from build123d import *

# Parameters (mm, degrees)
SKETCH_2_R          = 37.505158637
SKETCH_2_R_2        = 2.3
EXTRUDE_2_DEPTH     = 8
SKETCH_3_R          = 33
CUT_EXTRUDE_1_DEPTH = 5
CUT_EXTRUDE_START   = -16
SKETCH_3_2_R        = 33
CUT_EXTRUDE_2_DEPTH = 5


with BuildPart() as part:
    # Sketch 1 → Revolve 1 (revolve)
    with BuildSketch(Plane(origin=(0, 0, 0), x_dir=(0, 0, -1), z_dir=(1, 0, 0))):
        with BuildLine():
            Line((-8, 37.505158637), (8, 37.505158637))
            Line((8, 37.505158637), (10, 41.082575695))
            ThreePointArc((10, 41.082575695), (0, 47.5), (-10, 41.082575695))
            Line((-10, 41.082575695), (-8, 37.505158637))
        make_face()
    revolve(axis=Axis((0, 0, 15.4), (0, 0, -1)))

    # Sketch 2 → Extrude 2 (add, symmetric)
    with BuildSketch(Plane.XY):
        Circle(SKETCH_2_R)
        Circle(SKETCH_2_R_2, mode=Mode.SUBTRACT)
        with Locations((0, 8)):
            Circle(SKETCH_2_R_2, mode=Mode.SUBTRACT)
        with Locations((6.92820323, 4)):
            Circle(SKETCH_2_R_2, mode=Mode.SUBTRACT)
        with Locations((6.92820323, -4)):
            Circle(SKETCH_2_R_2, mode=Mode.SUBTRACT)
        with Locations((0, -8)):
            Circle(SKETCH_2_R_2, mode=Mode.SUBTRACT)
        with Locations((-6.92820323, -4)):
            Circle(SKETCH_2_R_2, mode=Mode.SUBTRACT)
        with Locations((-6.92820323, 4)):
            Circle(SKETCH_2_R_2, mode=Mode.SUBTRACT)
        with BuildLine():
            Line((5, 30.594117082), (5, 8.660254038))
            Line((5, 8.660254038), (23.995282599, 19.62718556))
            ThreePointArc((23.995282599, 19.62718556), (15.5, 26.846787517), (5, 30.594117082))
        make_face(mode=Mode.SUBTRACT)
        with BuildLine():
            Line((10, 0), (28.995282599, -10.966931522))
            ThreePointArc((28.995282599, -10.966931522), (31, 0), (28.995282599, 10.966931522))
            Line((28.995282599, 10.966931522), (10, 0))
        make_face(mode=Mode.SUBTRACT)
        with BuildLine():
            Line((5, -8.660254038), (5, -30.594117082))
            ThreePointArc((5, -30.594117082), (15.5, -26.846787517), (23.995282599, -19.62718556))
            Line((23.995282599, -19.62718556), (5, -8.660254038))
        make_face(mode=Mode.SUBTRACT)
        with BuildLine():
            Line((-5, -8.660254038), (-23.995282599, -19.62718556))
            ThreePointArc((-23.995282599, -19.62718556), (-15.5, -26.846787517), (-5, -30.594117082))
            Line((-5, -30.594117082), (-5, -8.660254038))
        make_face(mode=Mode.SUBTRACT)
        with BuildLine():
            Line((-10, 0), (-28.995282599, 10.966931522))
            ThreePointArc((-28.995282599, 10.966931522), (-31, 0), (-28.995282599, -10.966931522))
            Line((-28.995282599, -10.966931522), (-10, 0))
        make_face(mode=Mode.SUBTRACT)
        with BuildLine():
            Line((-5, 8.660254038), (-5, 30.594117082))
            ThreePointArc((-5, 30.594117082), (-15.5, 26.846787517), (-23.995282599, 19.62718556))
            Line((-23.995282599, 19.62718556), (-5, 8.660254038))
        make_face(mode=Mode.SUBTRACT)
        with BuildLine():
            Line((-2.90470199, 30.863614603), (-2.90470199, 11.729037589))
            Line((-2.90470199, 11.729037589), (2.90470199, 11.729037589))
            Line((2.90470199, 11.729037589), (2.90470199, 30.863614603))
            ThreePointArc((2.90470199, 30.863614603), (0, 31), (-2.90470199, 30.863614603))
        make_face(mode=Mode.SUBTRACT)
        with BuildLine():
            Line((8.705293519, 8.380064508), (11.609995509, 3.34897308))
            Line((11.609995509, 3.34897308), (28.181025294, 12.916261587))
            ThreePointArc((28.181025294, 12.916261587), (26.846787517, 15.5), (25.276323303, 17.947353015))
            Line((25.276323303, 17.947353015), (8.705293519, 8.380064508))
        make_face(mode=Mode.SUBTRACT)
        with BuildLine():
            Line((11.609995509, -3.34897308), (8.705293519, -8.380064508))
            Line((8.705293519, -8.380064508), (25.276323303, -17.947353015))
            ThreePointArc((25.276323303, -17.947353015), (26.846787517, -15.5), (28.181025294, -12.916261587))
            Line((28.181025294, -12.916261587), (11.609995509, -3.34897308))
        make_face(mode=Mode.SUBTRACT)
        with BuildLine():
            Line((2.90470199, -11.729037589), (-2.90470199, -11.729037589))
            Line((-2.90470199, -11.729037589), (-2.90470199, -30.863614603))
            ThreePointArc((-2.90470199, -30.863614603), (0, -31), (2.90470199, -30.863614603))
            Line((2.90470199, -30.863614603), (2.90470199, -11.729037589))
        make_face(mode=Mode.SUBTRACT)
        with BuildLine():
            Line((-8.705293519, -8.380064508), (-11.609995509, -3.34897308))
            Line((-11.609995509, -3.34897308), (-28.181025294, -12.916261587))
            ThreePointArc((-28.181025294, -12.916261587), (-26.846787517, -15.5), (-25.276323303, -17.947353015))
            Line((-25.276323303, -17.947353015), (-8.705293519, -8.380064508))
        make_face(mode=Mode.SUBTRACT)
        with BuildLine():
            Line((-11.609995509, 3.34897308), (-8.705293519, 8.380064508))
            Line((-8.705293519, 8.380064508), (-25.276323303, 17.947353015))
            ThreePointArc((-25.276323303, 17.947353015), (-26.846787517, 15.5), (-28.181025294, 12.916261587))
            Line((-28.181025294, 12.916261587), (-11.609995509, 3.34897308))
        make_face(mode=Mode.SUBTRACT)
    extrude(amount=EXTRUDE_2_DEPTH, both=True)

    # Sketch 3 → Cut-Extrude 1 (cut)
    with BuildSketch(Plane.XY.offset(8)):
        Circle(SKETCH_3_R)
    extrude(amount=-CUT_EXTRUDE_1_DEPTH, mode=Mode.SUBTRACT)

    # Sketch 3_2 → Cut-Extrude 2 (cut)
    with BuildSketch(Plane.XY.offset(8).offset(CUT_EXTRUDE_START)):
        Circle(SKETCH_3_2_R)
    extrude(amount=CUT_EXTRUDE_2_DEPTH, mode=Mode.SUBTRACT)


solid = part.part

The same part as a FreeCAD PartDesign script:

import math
import FreeCAD as App
import Part
import Sketcher

V = App.Vector
Q = App.Units.Quantity

doc = App.newDocument("Part")
params = doc.addObject("Spreadsheet::Sheet", "Params")
for row, (alias, value) in enumerate([
    ("sketch1_radius", "11 mm"),
    ("sketch1_height", "16 mm"),
    ("revolution_angle", "360 deg"),
    ("sketch2_radius", "31 mm"),
    ("sketch2_diameter", "4.6 mm"),
    ("pad1_length", "16 mm"),
    ("sketch3_diameter", "66 mm"),
    ("pocket1_length", "5 mm"),
    ("sketch4_diameter", "66 mm"),
    ("pocket2_length", "5 mm"),
], start=1):
    params.set(f"A{row}", alias)
    params.set(f"B{row}", "=" + value)
    params.setAlias(f"B{row}", alias)

body = doc.addObject("PartDesign::Body", "Body")

# Sketch on YZ plane
sketch1 = body.newObject("Sketcher::SketchObject", "Sketch")
sketch1.AttachmentSupport = (doc.getObject("YZ_Plane"), [""])
sketch1.MapMode = "FlatFace"
sketch1.addGeometry([
    Part.LineSegment(V(37.505159, 8, 0), V(37.505159, -8, 0)),
    Part.LineSegment(V(37.505159, -8, 0), V(41.082576, -10, 0)),
    Part.ArcOfCircle(Part.Circle(V(36.5, 0, 0), V(0, 0, 1), 11), math.radians(-65.380023), math.radians(65.380023)),
    Part.LineSegment(V(41.082576, 10, 0), V(37.505159, 8, 0)),
], False)
sketch1.addConstraint([
    Sketcher.Constraint("Coincident", 0, 2, 1, 1),
    Sketcher.Constraint("Coincident", 1, 2, 2, 1),
    Sketcher.Constraint("Coincident", 2, 2, 3, 1),
    Sketcher.Constraint("Coincident", 3, 2, 0, 1),
    Sketcher.Constraint("Vertical", 0),
    Sketcher.Constraint("Symmetric", 1, 2, 2, 2, -1),
    Sketcher.Constraint("Equal", 1, 3),
    Sketcher.Constraint("Radius", 2, Q("11 mm")),
    Sketcher.Constraint("DistanceY", 0, 2, 0, 1, Q("16 mm")),
    Sketcher.Constraint("DistanceY", 1, 2, -1, 1, Q("10 mm")),
    Sketcher.Constraint("DistanceX", -1, 1, 2, 3, Q("36.5 mm")),
    Sketcher.Constraint("DistanceX", -1, 1, 0, 2, Q("37.505159 mm")),
])
sketch1.setExpression("Constraints[7]", "Params.sketch1_radius")
sketch1.setExpression("Constraints[8]", "Params.sketch1_height")
revolution = body.newObject("PartDesign::Revolution", "Revolution")
revolution.Profile = sketch1
revolution.ReferenceAxis = (sketch1, ["V_Axis"])
revolution.setExpression("Angle", "Params.revolution_angle")

# Sketch on XY plane
sketch2 = body.newObject("Sketcher::SketchObject", "Sketch001")
sketch2.AttachmentSupport = (doc.getObject("XY_Plane"), [""])
sketch2.MapMode = "FlatFace"
sketch2.addGeometry([
    Part.Circle(V(0, 0, 0), V(0, 0, 1), 37.505159),  # 0
    Part.LineSegment(V(-23.995283, -19.627186, 0), V(-5, -8.660254, 0)),  # 1
    Part.LineSegment(V(-5, -8.660254, 0), V(-5, -30.594117, 0)),  # 2
    Part.ArcOfCircle(Part.Circle(V(0, 0, 0), V(0, 0, 1), 31), math.radians(-140.718201), math.radians(-99.281799)),  # 3
    Part.LineSegment(V(-11.609996, -3.348973, 0), V(-8.705294, -8.380065, 0)),  # 4
    Part.LineSegment(V(-8.705294, -8.380065, 0), V(-25.276323, -17.947353, 0)),  # 5
    Part.ArcOfCircle(Part.Circle(V(0, 0, 0), V(0, 0, 1), 31), math.radians(-155.376505), math.radians(-144.623495)),  # 6
    Part.LineSegment(V(-28.181025, -12.916262, 0), V(-11.609996, -3.348973, 0)),  # 7
    Part.Circle(V(-6.928203, -4, 0), V(0, 0, 1), 2.3),  # 8
    Part.LineSegment(V(-2.904702, -11.729038, 0), V(2.904702, -11.729038, 0)),  # 9
    Part.LineSegment(V(2.904702, -11.729038, 0), V(2.904702, -30.863615, 0)),  # 10
    Part.ArcOfCircle(Part.Circle(V(0, 0, 0), V(0, 0, 1), 31), math.radians(-95.376505), math.radians(-84.623495)),  # 11
    Part.LineSegment(V(-2.904702, -30.863615, 0), V(-2.904702, -11.729038, 0)),  # 12
    Part.LineSegment(V(5, -30.594117, 0), V(5, -8.660254, 0)),  # 13
    Part.LineSegment(V(5, -8.660254, 0), V(23.995283, -19.627186, 0)),  # 14
    Part.ArcOfCircle(Part.Circle(V(0, 0, 0), V(0, 0, 1), 31), math.radians(-80.718201), math.radians(-39.281799)),  # 15
    Part.Circle(V(0, -8, 0), V(0, 0, 1), 2.3),  # 16
    Part.Circle(V(6.928203, -4, 0), V(0, 0, 1), 2.3),  # 17
    Part.LineSegment(V(8.705294, -8.380065, 0), V(11.609996, -3.348973, 0)),  # 18
    Part.LineSegment(V(11.609996, -3.348973, 0), V(28.181025, -12.916262, 0)),  # 19
    Part.ArcOfCircle(Part.Circle(V(0, 0, 0), V(0, 0, 1), 31), math.radians(-35.376505), math.radians(-24.623495)),  # 20
    Part.LineSegment(V(25.276323, -17.947353, 0), V(8.705294, -8.380065, 0)),  # 21
    Part.LineSegment(V(-28.995283, 10.966932, 0), V(-10, 0, 0)),  # 22
    Part.LineSegment(V(-10, 0, 0), V(-28.995283, -10.966932, 0)),  # 23
    Part.ArcOfCircle(Part.Circle(V(0, 0, 0), V(0, 0, 1), 31), math.radians(159.281799), math.radians(200.718201)),  # 24
    Part.LineSegment(V(-8.705294, 8.380065, 0), V(-11.609996, 3.348973, 0)),  # 25
    Part.LineSegment(V(-11.609996, 3.348973, 0), V(-28.181025, 12.916262, 0)),  # 26
    Part.ArcOfCircle(Part.Circle(V(0, 0, 0), V(0, 0, 1), 31), math.radians(144.623495), math.radians(155.376505)),  # 27
    Part.LineSegment(V(-25.276323, 17.947353, 0), V(-8.705294, 8.380065, 0)),  # 28
    Part.Circle(V(-6.928203, 4, 0), V(0, 0, 1), 2.3),  # 29
    Part.LineSegment(V(-5, 30.594117, 0), V(-5, 8.660254, 0)),  # 30
    Part.LineSegment(V(-5, 8.660254, 0), V(-23.995283, 19.627186, 0)),  # 31
    Part.ArcOfCircle(Part.Circle(V(0, 0, 0), V(0, 0, 1), 31), math.radians(99.281799), math.radians(140.718201)),  # 32
    Part.Circle(V(0, 0, 0), V(0, 0, 1), 2.3),  # 33
    Part.Circle(V(6.928203, 4, 0), V(0, 0, 1), 2.3),  # 34
    Part.Circle(V(0, 8, 0), V(0, 0, 1), 2.3),  # 35
    Part.LineSegment(V(28.995283, -10.966932, 0), V(10, 0, 0)),  # 36
    Part.LineSegment(V(10, 0, 0), V(28.995283, 10.966932, 0)),  # 37
    Part.ArcOfCircle(Part.Circle(V(0, 0, 0), V(0, 0, 1), 31), math.radians(-20.718201), math.radians(20.718201)),  # 38
    Part.LineSegment(V(11.609996, 3.348973, 0), V(8.705294, 8.380065, 0)),  # 39
    Part.LineSegment(V(8.705294, 8.380065, 0), V(25.276323, 17.947353, 0)),  # 40
    Part.ArcOfCircle(Part.Circle(V(0, 0, 0), V(0, 0, 1), 31), math.radians(24.623495), math.radians(35.376505)),  # 41
    Part.LineSegment(V(28.181025, 12.916262, 0), V(11.609996, 3.348973, 0)),  # 42
    Part.LineSegment(V(-2.904702, 11.729038, 0), V(-2.904702, 30.863615, 0)),  # 43
    Part.ArcOfCircle(Part.Circle(V(0, 0, 0), V(0, 0, 1), 31), math.radians(84.623495), math.radians(95.376505)),  # 44
    Part.LineSegment(V(2.904702, 30.863615, 0), V(2.904702, 11.729038, 0)),  # 45
    Part.LineSegment(V(2.904702, 11.729038, 0), V(-2.904702, 11.729038, 0)),  # 46
    Part.LineSegment(V(5, 8.660254, 0), V(5, 30.594117, 0)),  # 47
    Part.ArcOfCircle(Part.Circle(V(0, 0, 0), V(0, 0, 1), 31), math.radians(39.281799), math.radians(80.718201)),  # 48
    Part.LineSegment(V(23.995283, 19.627186, 0), V(5, 8.660254, 0)),  # 49
], False)
sketch2.addConstraint([
    Sketcher.Constraint("Coincident", 1, 2, 2, 1),
    Sketcher.Constraint("Coincident", 2, 2, 3, 2),
    Sketcher.Constraint("Coincident", 3, 1, 1, 1),
    Sketcher.Constraint("Coincident", 4, 2, 5, 1),
    Sketcher.Constraint("Coincident", 5, 2, 6, 2),
    Sketcher.Constraint("Coincident", 6, 1, 7, 1),
    Sketcher.Constraint("Coincident", 7, 2, 4, 1),
    Sketcher.Constraint("Coincident", 9, 2, 10, 1),
    Sketcher.Constraint("Coincident", 10, 2, 11, 2),
    Sketcher.Constraint("Coincident", 11, 1, 12, 1),
    Sketcher.Constraint("Coincident", 12, 2, 9, 1),
    Sketcher.Constraint("Coincident", 13, 2, 14, 1),
    Sketcher.Constraint("Coincident", 14, 2, 15, 2),
    Sketcher.Constraint("Coincident", 15, 1, 13, 1),
    Sketcher.Constraint("Coincident", 18, 2, 19, 1),
    Sketcher.Constraint("Coincident", 19, 2, 20, 2),
    Sketcher.Constraint("Coincident", 20, 1, 21, 1),
    Sketcher.Constraint("Coincident", 21, 2, 18, 1),
    Sketcher.Constraint("Coincident", 22, 2, 23, 1),
    Sketcher.Constraint("Coincident", 23, 2, 24, 2),
    Sketcher.Constraint("Coincident", 24, 1, 22, 1),
    Sketcher.Constraint("Coincident", 25, 2, 26, 1),
    Sketcher.Constraint("Coincident", 26, 2, 27, 2),
    Sketcher.Constraint("Coincident", 27, 1, 28, 1),
    Sketcher.Constraint("Coincident", 28, 2, 25, 1),
    Sketcher.Constraint("Coincident", 30, 2, 31, 1),
    Sketcher.Constraint("Coincident", 31, 2, 32, 2),
    Sketcher.Constraint("Coincident", 32, 1, 30, 1),
    Sketcher.Constraint("Coincident", 36, 2, 37, 1),
    Sketcher.Constraint("Coincident", 37, 2, 38, 2),
    Sketcher.Constraint("Coincident", 38, 1, 36, 1),
    Sketcher.Constraint("Coincident", 39, 2, 40, 1),
    Sketcher.Constraint("Coincident", 40, 2, 41, 2),
    Sketcher.Constraint("Coincident", 41, 1, 42, 1),
    Sketcher.Constraint("Coincident", 42, 2, 39, 1),
    Sketcher.Constraint("Coincident", 43, 2, 44, 2),
    Sketcher.Constraint("Coincident", 44, 1, 45, 1),
    Sketcher.Constraint("Coincident", 45, 2, 46, 1),
    Sketcher.Constraint("Coincident", 46, 2, 43, 1),
    Sketcher.Constraint("Coincident", 47, 2, 48, 2),
    Sketcher.Constraint("Coincident", 48, 1, 49, 1),
    Sketcher.Constraint("Coincident", 49, 2, 47, 1),
    Sketcher.Constraint("Vertical", 2),
    Sketcher.Constraint("Horizontal", 9),
    Sketcher.Constraint("Vertical", 10),
    Sketcher.Constraint("Vertical", 12),
    Sketcher.Constraint("Vertical", 13),
    Sketcher.Constraint("Vertical", 30),
    Sketcher.Constraint("Vertical", 43),
    Sketcher.Constraint("Vertical", 45),
    Sketcher.Constraint("Horizontal", 46),
    Sketcher.Constraint("Vertical", 47),
    Sketcher.Constraint("Coincident", 0, 3, -1, 1),
    Sketcher.Constraint("Coincident", 3, 3, -1, 1),
    Sketcher.Constraint("Coincident", 6, 3, -1, 1),
    Sketcher.Constraint("Coincident", 11, 3, -1, 1),
    Sketcher.Constraint("Coincident", 15, 3, -1, 1),
    Sketcher.Constraint("Coincident", 20, 3, -1, 1),
    Sketcher.Constraint("Coincident", 24, 3, -1, 1),
    Sketcher.Constraint("Coincident", 27, 3, -1, 1),
    Sketcher.Constraint("Coincident", 32, 3, -1, 1),
    Sketcher.Constraint("Coincident", 33, 3, -1, 1),
    Sketcher.Constraint("Coincident", 38, 3, -1, 1),
    Sketcher.Constraint("Coincident", 41, 3, -1, 1),
    Sketcher.Constraint("Coincident", 44, 3, -1, 1),
    Sketcher.Constraint("Coincident", 48, 3, -1, 1),
    Sketcher.Constraint("Equal", 3, 6),
    Sketcher.Constraint("Equal", 6, 11),
    Sketcher.Constraint("Equal", 11, 15),
    Sketcher.Constraint("Equal", 8, 16),
    Sketcher.Constraint("Equal", 16, 17),
    Sketcher.Constraint("Equal", 15, 20),
    Sketcher.Constraint("Equal", 20, 24),
    Sketcher.Constraint("Equal", 24, 27),
    Sketcher.Constraint("Equal", 17, 29),
    Sketcher.Constraint("Equal", 27, 32),
    Sketcher.Constraint("Equal", 29, 33),
    Sketcher.Constraint("Equal", 33, 34),
    Sketcher.Constraint("Equal", 34, 35),
    Sketcher.Constraint("Equal", 32, 38),
    Sketcher.Constraint("Equal", 38, 41),
    Sketcher.Constraint("Equal", 41, 44),
    Sketcher.Constraint("Equal", 44, 48),
    Sketcher.Constraint("Symmetric", 17, 3, 29, 3, -1, 1),
    Sketcher.Constraint("Symmetric", 8, 3, 34, 3, -1, 1),
    Sketcher.Constraint("Symmetric", 16, 3, 35, 3, -1, 1),
    Sketcher.Constraint("Symmetric", 18, 2, 25, 2, -1, 1),
    Sketcher.Constraint("Symmetric", 21, 2, 28, 2, -1, 1),
    Sketcher.Constraint("Symmetric", 13, 2, 30, 2, -1, 1),
    Sketcher.Constraint("Symmetric", 22, 2, 36, 2, -1, 1),
    Sketcher.Constraint("Symmetric", 4, 2, 39, 2, -1, 1),
    Sketcher.Constraint("Symmetric", 7, 2, 42, 2, -1, 1),
    Sketcher.Constraint("Symmetric", 12, 2, 45, 2, -1, 1),
    Sketcher.Constraint("Symmetric", 1, 2, 49, 2, -1, 1),
    Sketcher.Constraint("Symmetric", 8, 3, 17, 3, -2),
    Sketcher.Constraint("Symmetric", 1, 2, 13, 2, -2),
    Sketcher.Constraint("Symmetric", 7, 2, 18, 2, -2),
    Sketcher.Constraint("Symmetric", 4, 2, 21, 2, -2),
    Sketcher.Constraint("PointOnObject", 16, 3, -2),
    Sketcher.Constraint("PointOnObject", 22, 2, -1),
    Sketcher.Constraint("Perpendicular", 1, 4),
    Sketcher.Constraint("Perpendicular", 4, 5),
    Sketcher.Constraint("Parallel", 5, 7),
    Sketcher.Constraint("Perpendicular", 14, 18),
    Sketcher.Constraint("Perpendicular", 18, 19),
    Sketcher.Constraint("Parallel", 19, 21),
    Sketcher.Constraint("Parallel", 21, 22),
    Sketcher.Constraint("Parallel", 7, 23),
    Sketcher.Constraint("Perpendicular", 25, 26),
    Sketcher.Constraint("Parallel", 26, 28),
    Sketcher.Constraint("Parallel", 28, 31),
    Sketcher.Constraint("Parallel", 31, 36),
    Sketcher.Constraint("Parallel", 23, 37),
    Sketcher.Constraint("Perpendicular", 39, 40),
    Sketcher.Constraint("Parallel", 40, 42),
    Sketcher.Constraint("Parallel", 42, 49),
    Sketcher.Constraint("Horizontal", 10, 2, 11, 1),
    Sketcher.Constraint("Horizontal", 43, 2, 44, 1),
    Sketcher.Constraint("Equal", 5, 7),
    Sketcher.Constraint("Equal", 14, 22),
    Sketcher.Constraint("Radius", 3, Q("31 mm")),
    Sketcher.Constraint("Diameter", 8, Q("4.6 mm")),
    Sketcher.Constraint("Angle", 1, Q("30 deg")),
    Sketcher.Constraint("DistanceY", 8, 3, -1, 1, Q("4 mm")),
    Sketcher.Constraint("DistanceY", 16, 3, -1, 1, Q("8 mm")),
    Sketcher.Constraint("DistanceX", 1, 2, -1, 1, Q("5 mm")),
    Sketcher.Constraint("DistanceX", 22, 2, -1, 1, Q("10 mm")),
    Sketcher.Constraint("Diameter", 0, Q("75.010317 mm")),
    Sketcher.Constraint("DistanceX", -1, 1, 9, 2, Q("2.904702 mm")),
    Sketcher.Constraint("DistanceY", 10, 2, 10, 1, Q("19.134577 mm")),
    Sketcher.Constraint("DistanceY", 6, 1, -1, 1, Q("12.916262 mm")),
    Sketcher.Constraint("Distance", 5, Q("19.134577 mm")),
    Sketcher.Constraint("DistanceX", 8, 3, -1, 1, Q("6.928203 mm")),
])
sketch2.setExpression("Constraints[120]", "Params.sketch2_radius")
sketch2.setExpression("Constraints[121]", "Params.sketch2_diameter")
pad1 = body.newObject("PartDesign::Pad", "Pad")
pad1.Profile = sketch2
pad1.setExpression("Length", "Params.pad1_length")
pad1.Midplane = True

# Sketch on XY plane
sketch3 = body.newObject("Sketcher::SketchObject", "Sketch002")
sketch3.AttachmentSupport = (doc.getObject("XY_Plane"), [""])
sketch3.MapMode = "FlatFace"
sketch3.AttachmentOffset = App.Placement(V(0, 0, 8), App.Rotation())
sketch3.addGeometry(Part.Circle(V(0, 0, 0), V(0, 0, 1), 33), False)
sketch3.addConstraint([
    Sketcher.Constraint("Coincident", 0, 3, -1, 1),
    Sketcher.Constraint("Diameter", 0, Q("66 mm")),
])
sketch3.setExpression("Constraints[1]", "Params.sketch3_diameter")
pocket1 = body.newObject("PartDesign::Pocket", "Pocket")
pocket1.Profile = sketch3
pocket1.setExpression("Length", "Params.pocket1_length")

# Sketch on XY plane
sketch4 = body.newObject("Sketcher::SketchObject", "Sketch003")
sketch4.AttachmentSupport = (doc.getObject("XY_Plane"), [""])
sketch4.MapMode = "FlatFace"
sketch4.AttachmentOffset = App.Placement(V(0, 0, -8), App.Rotation())
sketch4.addGeometry(Part.Circle(V(0, 0, 0), V(0, 0, 1), 33), False)
sketch4.addConstraint([
    Sketcher.Constraint("Coincident", 0, 3, -1, 1),
    Sketcher.Constraint("Diameter", 0, Q("66 mm")),
])
sketch4.setExpression("Constraints[1]", "Params.sketch4_diameter")
pocket2 = body.newObject("PartDesign::Pocket", "Pocket001")
pocket2.Profile = sketch4
pocket2.setExpression("Length", "Params.pocket2_length")
pocket2.Reversed = True

doc.recompute()
